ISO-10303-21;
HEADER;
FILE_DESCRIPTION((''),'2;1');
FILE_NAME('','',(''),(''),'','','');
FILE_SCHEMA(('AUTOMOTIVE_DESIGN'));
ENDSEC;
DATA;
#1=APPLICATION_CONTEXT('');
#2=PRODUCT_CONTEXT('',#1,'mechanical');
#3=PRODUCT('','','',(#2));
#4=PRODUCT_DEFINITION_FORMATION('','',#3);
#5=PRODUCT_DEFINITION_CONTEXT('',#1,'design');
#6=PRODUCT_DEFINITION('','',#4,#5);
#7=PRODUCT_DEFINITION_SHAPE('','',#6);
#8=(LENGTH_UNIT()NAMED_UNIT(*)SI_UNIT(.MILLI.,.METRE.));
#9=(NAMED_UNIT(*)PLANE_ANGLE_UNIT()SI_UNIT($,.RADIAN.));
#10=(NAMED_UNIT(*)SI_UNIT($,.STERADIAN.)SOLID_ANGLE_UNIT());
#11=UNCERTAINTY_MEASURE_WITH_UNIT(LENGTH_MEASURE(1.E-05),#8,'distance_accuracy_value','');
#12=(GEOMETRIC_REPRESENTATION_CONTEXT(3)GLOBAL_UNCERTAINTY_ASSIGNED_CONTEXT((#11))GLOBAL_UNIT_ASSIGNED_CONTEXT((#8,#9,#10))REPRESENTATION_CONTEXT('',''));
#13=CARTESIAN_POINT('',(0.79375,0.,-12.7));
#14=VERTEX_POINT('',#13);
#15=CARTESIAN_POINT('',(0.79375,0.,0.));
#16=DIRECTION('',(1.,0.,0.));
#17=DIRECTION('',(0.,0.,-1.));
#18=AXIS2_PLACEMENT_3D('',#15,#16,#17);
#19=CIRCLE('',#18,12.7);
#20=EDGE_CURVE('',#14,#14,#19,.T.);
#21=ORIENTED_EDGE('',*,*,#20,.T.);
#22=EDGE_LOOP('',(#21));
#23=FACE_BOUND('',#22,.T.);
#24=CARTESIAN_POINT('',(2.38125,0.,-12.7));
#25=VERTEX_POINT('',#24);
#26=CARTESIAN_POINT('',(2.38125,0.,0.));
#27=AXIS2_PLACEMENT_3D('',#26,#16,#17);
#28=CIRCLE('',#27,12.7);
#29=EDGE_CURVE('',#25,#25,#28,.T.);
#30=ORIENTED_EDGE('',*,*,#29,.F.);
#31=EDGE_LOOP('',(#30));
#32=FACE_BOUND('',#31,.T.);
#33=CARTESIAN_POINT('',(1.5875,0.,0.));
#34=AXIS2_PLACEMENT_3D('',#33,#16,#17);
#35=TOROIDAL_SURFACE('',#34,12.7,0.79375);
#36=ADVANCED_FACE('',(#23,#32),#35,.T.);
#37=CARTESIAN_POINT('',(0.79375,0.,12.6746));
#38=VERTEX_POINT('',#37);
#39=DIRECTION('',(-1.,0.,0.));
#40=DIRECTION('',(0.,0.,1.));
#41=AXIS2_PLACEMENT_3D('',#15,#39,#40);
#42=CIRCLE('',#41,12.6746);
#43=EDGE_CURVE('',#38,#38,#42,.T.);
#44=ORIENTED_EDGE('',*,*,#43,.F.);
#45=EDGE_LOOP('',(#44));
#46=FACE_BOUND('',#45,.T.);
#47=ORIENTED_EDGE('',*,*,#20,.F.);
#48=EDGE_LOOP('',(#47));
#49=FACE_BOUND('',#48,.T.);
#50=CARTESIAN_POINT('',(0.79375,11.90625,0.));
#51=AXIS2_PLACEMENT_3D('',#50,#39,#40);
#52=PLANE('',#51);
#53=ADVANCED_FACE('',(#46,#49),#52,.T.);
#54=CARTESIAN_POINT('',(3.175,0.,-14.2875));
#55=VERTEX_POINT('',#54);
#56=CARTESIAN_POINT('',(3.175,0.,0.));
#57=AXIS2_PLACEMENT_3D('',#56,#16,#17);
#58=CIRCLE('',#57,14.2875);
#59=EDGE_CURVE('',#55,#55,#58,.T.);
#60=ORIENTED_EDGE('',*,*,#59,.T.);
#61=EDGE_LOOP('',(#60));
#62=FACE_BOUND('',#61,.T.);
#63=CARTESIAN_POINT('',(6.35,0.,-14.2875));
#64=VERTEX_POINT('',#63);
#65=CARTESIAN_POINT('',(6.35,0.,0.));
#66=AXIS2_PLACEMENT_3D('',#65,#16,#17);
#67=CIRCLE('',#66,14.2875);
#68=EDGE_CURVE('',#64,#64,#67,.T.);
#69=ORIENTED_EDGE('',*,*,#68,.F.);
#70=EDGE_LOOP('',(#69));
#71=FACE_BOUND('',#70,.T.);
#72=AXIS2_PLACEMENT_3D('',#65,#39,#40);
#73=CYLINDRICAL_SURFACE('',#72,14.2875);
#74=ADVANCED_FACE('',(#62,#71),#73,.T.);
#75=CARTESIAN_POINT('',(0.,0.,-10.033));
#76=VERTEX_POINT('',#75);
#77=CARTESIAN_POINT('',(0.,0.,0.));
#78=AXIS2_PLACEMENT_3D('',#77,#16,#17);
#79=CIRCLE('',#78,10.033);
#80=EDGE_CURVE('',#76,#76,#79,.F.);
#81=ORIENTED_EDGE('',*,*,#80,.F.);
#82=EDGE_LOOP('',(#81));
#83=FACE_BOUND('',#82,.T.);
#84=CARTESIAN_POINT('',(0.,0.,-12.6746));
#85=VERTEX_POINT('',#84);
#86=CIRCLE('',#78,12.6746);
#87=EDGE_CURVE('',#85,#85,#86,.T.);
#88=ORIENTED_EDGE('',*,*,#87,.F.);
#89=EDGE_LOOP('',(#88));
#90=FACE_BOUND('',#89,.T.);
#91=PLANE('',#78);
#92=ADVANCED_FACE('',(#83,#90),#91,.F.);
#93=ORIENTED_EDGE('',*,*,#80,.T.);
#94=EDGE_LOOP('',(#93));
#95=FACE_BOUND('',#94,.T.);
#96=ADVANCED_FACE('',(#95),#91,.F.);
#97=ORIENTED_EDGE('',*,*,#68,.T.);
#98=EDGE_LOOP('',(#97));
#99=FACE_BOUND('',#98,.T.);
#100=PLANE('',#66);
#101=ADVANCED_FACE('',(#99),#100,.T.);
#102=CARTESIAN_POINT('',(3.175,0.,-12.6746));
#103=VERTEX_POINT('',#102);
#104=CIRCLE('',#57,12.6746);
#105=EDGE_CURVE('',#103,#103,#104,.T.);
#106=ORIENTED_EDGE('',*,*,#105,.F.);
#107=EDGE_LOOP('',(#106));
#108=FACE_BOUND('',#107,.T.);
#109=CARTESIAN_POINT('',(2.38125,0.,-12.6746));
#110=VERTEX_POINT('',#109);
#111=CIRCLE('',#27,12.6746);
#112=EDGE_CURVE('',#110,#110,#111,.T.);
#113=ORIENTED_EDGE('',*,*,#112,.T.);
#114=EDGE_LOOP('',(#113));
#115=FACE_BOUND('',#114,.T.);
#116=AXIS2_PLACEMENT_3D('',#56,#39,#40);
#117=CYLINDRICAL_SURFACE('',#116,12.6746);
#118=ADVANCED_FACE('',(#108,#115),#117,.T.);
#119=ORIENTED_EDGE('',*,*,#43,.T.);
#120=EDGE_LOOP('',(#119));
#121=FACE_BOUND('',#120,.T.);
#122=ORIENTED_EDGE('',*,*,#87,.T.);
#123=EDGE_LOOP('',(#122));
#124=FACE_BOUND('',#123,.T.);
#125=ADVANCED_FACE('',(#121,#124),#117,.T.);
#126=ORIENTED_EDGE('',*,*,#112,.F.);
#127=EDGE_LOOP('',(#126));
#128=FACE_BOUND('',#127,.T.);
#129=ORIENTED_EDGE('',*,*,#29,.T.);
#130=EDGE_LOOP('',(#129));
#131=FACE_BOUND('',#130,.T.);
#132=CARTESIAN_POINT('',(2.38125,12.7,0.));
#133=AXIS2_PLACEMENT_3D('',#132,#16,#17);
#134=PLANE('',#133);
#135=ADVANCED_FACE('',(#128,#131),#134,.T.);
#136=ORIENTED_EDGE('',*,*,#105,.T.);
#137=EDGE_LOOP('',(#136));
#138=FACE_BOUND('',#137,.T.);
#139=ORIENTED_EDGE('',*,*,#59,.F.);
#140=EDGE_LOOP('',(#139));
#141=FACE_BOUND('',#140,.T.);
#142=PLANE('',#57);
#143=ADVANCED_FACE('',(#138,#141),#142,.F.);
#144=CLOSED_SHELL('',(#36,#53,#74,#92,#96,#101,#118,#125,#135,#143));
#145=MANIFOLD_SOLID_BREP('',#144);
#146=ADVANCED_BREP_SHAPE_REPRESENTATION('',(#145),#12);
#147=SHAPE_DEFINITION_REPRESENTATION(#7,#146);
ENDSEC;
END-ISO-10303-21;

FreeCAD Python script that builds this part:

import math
import FreeCAD as App
import Part
import Sketcher
Q = App.Units.Quantity

doc = App.newDocument("Part")
body = doc.addObject("PartDesign::Body", "Body")

sketch1 = body.newObject("Sketcher::SketchObject", "Sketch")
sketch1.AttachmentSupport = (doc.getObject("YZ_Plane"), [""])
sketch1.MapMode = "FlatFace"
sketch1.addGeometry(Part.Circle(App.Vector(0, 0, 0), App.Vector(0, 0, 1), 12.6746), False)
sketch1.addConstraint([
    Sketcher.Constraint("Coincident", 0, 3, -1, 1),
    Sketcher.Constraint("Diameter", 0, Q("0.998 in")),
])
pad1 = body.newObject("PartDesign::Pad", "Pad")
pad1.Profile = sketch1
pad1.Length = Q("0.125 in")

sketch2 = body.newObject("Sketcher::SketchObject", "Sketch001")
sketch2.AttachmentSupport = (doc.getObject("YZ_Plane"), [""])
sketch2.MapMode = "FlatFace"
sketch2.AttachmentOffset = App.Placement(App.Vector(0, 0, 0.125 * 25.4), App.Rotation())
sketch2.addGeometry(Part.Circle(App.Vector(0, 0, 0), App.Vector(0, 0, 1), 14.2875), False)
sketch2.addConstraint([
    Sketcher.Constraint("Coincident", 0, 3, -1, 1),
    Sketcher.Constraint("Diameter", 0, Q("1.125 in")),
])
pad2 = body.newObject("PartDesign::Pad", "Pad001")
pad2.Profile = sketch2
pad2.Length = Q("0.125 in")

sketch3 = body.newObject("Sketcher::SketchObject", "Sketch002")
sketch3.AttachmentSupport = (doc.getObject("XY_Plane"), [""])
sketch3.MapMode = "FlatFace"
sketch3.addGeometry([
    Part.LineSegment(App.Vector(2.38125, 11.90625, 0), App.Vector(2.38125, 12.7, 0)),
    Part.ArcOfCircle(Part.Circle(App.Vector(1.5875, 12.7, 0), App.Vector(0, 0, 1), 0.79375), math.radians(0), math.radians(180)),
    Part.LineSegment(App.Vector(0.79375, 12.7, 0), App.Vector(0.79375, 11.90625, 0)),
    Part.LineSegment(App.Vector(0.79375, 11.90625, 0), App.Vector(2.38125, 11.90625, 0)),
], False)
sketch3.addConstraint([
    Sketcher.Constraint("Tangent", 0, 2, 1, 1),
    Sketcher.Constraint("Tangent", 1, 2, 2, 1),
    Sketcher.Constraint("Coincident", 2, 2, 3, 1),
    Sketcher.Constraint("Coincident", 3, 2, 0, 1),
    Sketcher.Constraint("Vertical", 0),
    Sketcher.Constraint("Vertical", 2),
    Sketcher.Constraint("Horizontal", 3),
    Sketcher.Constraint("Radius", 1, Q("0.03125 in")),
    Sketcher.Constraint("DistanceY", -1, 1, 1, 3, Q("0.5 in")),
    Sketcher.Constraint("DistanceY", 0, 1, 0, 2, Q("0.03125 in")),
    Sketcher.Constraint("DistanceX", -1, 1, 1, 3, Q("0.0625 in")),
])
revolution = body.newObject("PartDesign::Revolution", "Revolution")
revolution.Profile = sketch3
revolution.ReferenceAxis = (sketch3, ["H_Axis"])
revolution.Angle = 360

doc.recompute()
